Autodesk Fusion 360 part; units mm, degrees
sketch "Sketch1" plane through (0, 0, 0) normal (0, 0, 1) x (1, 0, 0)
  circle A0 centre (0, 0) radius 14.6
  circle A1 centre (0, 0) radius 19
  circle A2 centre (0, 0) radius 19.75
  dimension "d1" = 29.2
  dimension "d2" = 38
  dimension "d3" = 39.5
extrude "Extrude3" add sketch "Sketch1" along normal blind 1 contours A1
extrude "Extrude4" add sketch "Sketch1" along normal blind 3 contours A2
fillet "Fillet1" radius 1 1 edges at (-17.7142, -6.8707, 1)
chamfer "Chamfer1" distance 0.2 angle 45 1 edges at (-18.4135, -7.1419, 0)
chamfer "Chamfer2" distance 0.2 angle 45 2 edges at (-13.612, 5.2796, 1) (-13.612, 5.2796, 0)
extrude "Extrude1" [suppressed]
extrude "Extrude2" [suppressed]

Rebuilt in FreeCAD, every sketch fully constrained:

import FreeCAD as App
import Part
import Sketcher

V = App.Vector


def edges_at(feature, points):
    """Names of the edges that pass closest to the given points."""
    edges = feature.Shape.Edges
    near = lambda p: min(range(len(edges)), key=lambda i: edges[i].distToShape(Part.Vertex(*p))[0])
    return sorted({f"Edge{near(p) + 1}" for p in points})

doc = App.newDocument("Part")
body = doc.addObject("PartDesign::Body", "Body")

sketch1 = body.newObject("Sketcher::SketchObject", "Sketch")
sketch1.AttachmentSupport = (doc.getObject("XY_Plane"), [""])
sketch1.MapMode = "FlatFace"
sketch1.addGeometry(Part.Circle(V(0, 0, 0), V(0, 0, 1), 19), False)
sketch1.addGeometry(Part.Circle(V(0, 0, 0), V(0, 0, 1), 15), False)
sketch1.addConstraint(Sketcher.Constraint("Coincident", 0, 3, -1, 1))
sketch1.addConstraint(Sketcher.Constraint("Coincident", 1, 3, -1, 1))
sketch1.addConstraint(Sketcher.Constraint("Diameter", 0, 38.0))
sketch1.addConstraint(Sketcher.Constraint("Diameter", 1, 29.2))
pad1 = body.newObject("PartDesign::Pad", "Pad")
pad1.Profile = sketch1
pad1.Length = 1

sketch2 = body.newObject("Sketcher::SketchObject", "Sketch001")
sketch2.AttachmentSupport = (doc.getObject("XY_Plane"), [""])
sketch2.MapMode = "FlatFace"
sketch2.addGeometry(Part.Circle(V(0, 0, 0), V(0, 0, 1), 20), False)
sketch2.addGeometry(Part.Circle(V(0, 0, 0), V(0, 0, 1), 19), False)
sketch2.addConstraint(Sketcher.Constraint("Coincident", 0, 3, -1, 1))
sketch2.addConstraint(Sketcher.Constraint("Coincident", 1, 3, -1, 1))
sketch2.addConstraint(Sketcher.Constraint("Diameter", 1, 38.0))
sketch2.addConstraint(Sketcher.Constraint("Diameter", 0, 39.5))
pad2 = body.newObject("PartDesign::Pad", "Pad001")
pad2.Profile = sketch2
pad2.Length = 3
doc.recompute()

fillet = body.newObject("PartDesign::Fillet", "Fillet")
fillet.Base = (pad2, edges_at(pad2, [(-17.714, -6.871, 1)]))
fillet.Radius = 1
doc.recompute()

chamfer = body.newObject("PartDesign::Chamfer", "Chamfer")
chamfer.Base = (fillet, edges_at(fillet, [(-18.413, -7.142, 0)]))
chamfer.Size = 0.2
doc.recompute()

chamfer2 = body.newObject("PartDesign::Chamfer", "Chamfer001")
chamfer2.Base = (chamfer, edges_at(chamfer, [(-13.612, 5.28, 1), (-13.612, 5.28, 0)]))
chamfer2.Size = 0.2

doc.recompute()
